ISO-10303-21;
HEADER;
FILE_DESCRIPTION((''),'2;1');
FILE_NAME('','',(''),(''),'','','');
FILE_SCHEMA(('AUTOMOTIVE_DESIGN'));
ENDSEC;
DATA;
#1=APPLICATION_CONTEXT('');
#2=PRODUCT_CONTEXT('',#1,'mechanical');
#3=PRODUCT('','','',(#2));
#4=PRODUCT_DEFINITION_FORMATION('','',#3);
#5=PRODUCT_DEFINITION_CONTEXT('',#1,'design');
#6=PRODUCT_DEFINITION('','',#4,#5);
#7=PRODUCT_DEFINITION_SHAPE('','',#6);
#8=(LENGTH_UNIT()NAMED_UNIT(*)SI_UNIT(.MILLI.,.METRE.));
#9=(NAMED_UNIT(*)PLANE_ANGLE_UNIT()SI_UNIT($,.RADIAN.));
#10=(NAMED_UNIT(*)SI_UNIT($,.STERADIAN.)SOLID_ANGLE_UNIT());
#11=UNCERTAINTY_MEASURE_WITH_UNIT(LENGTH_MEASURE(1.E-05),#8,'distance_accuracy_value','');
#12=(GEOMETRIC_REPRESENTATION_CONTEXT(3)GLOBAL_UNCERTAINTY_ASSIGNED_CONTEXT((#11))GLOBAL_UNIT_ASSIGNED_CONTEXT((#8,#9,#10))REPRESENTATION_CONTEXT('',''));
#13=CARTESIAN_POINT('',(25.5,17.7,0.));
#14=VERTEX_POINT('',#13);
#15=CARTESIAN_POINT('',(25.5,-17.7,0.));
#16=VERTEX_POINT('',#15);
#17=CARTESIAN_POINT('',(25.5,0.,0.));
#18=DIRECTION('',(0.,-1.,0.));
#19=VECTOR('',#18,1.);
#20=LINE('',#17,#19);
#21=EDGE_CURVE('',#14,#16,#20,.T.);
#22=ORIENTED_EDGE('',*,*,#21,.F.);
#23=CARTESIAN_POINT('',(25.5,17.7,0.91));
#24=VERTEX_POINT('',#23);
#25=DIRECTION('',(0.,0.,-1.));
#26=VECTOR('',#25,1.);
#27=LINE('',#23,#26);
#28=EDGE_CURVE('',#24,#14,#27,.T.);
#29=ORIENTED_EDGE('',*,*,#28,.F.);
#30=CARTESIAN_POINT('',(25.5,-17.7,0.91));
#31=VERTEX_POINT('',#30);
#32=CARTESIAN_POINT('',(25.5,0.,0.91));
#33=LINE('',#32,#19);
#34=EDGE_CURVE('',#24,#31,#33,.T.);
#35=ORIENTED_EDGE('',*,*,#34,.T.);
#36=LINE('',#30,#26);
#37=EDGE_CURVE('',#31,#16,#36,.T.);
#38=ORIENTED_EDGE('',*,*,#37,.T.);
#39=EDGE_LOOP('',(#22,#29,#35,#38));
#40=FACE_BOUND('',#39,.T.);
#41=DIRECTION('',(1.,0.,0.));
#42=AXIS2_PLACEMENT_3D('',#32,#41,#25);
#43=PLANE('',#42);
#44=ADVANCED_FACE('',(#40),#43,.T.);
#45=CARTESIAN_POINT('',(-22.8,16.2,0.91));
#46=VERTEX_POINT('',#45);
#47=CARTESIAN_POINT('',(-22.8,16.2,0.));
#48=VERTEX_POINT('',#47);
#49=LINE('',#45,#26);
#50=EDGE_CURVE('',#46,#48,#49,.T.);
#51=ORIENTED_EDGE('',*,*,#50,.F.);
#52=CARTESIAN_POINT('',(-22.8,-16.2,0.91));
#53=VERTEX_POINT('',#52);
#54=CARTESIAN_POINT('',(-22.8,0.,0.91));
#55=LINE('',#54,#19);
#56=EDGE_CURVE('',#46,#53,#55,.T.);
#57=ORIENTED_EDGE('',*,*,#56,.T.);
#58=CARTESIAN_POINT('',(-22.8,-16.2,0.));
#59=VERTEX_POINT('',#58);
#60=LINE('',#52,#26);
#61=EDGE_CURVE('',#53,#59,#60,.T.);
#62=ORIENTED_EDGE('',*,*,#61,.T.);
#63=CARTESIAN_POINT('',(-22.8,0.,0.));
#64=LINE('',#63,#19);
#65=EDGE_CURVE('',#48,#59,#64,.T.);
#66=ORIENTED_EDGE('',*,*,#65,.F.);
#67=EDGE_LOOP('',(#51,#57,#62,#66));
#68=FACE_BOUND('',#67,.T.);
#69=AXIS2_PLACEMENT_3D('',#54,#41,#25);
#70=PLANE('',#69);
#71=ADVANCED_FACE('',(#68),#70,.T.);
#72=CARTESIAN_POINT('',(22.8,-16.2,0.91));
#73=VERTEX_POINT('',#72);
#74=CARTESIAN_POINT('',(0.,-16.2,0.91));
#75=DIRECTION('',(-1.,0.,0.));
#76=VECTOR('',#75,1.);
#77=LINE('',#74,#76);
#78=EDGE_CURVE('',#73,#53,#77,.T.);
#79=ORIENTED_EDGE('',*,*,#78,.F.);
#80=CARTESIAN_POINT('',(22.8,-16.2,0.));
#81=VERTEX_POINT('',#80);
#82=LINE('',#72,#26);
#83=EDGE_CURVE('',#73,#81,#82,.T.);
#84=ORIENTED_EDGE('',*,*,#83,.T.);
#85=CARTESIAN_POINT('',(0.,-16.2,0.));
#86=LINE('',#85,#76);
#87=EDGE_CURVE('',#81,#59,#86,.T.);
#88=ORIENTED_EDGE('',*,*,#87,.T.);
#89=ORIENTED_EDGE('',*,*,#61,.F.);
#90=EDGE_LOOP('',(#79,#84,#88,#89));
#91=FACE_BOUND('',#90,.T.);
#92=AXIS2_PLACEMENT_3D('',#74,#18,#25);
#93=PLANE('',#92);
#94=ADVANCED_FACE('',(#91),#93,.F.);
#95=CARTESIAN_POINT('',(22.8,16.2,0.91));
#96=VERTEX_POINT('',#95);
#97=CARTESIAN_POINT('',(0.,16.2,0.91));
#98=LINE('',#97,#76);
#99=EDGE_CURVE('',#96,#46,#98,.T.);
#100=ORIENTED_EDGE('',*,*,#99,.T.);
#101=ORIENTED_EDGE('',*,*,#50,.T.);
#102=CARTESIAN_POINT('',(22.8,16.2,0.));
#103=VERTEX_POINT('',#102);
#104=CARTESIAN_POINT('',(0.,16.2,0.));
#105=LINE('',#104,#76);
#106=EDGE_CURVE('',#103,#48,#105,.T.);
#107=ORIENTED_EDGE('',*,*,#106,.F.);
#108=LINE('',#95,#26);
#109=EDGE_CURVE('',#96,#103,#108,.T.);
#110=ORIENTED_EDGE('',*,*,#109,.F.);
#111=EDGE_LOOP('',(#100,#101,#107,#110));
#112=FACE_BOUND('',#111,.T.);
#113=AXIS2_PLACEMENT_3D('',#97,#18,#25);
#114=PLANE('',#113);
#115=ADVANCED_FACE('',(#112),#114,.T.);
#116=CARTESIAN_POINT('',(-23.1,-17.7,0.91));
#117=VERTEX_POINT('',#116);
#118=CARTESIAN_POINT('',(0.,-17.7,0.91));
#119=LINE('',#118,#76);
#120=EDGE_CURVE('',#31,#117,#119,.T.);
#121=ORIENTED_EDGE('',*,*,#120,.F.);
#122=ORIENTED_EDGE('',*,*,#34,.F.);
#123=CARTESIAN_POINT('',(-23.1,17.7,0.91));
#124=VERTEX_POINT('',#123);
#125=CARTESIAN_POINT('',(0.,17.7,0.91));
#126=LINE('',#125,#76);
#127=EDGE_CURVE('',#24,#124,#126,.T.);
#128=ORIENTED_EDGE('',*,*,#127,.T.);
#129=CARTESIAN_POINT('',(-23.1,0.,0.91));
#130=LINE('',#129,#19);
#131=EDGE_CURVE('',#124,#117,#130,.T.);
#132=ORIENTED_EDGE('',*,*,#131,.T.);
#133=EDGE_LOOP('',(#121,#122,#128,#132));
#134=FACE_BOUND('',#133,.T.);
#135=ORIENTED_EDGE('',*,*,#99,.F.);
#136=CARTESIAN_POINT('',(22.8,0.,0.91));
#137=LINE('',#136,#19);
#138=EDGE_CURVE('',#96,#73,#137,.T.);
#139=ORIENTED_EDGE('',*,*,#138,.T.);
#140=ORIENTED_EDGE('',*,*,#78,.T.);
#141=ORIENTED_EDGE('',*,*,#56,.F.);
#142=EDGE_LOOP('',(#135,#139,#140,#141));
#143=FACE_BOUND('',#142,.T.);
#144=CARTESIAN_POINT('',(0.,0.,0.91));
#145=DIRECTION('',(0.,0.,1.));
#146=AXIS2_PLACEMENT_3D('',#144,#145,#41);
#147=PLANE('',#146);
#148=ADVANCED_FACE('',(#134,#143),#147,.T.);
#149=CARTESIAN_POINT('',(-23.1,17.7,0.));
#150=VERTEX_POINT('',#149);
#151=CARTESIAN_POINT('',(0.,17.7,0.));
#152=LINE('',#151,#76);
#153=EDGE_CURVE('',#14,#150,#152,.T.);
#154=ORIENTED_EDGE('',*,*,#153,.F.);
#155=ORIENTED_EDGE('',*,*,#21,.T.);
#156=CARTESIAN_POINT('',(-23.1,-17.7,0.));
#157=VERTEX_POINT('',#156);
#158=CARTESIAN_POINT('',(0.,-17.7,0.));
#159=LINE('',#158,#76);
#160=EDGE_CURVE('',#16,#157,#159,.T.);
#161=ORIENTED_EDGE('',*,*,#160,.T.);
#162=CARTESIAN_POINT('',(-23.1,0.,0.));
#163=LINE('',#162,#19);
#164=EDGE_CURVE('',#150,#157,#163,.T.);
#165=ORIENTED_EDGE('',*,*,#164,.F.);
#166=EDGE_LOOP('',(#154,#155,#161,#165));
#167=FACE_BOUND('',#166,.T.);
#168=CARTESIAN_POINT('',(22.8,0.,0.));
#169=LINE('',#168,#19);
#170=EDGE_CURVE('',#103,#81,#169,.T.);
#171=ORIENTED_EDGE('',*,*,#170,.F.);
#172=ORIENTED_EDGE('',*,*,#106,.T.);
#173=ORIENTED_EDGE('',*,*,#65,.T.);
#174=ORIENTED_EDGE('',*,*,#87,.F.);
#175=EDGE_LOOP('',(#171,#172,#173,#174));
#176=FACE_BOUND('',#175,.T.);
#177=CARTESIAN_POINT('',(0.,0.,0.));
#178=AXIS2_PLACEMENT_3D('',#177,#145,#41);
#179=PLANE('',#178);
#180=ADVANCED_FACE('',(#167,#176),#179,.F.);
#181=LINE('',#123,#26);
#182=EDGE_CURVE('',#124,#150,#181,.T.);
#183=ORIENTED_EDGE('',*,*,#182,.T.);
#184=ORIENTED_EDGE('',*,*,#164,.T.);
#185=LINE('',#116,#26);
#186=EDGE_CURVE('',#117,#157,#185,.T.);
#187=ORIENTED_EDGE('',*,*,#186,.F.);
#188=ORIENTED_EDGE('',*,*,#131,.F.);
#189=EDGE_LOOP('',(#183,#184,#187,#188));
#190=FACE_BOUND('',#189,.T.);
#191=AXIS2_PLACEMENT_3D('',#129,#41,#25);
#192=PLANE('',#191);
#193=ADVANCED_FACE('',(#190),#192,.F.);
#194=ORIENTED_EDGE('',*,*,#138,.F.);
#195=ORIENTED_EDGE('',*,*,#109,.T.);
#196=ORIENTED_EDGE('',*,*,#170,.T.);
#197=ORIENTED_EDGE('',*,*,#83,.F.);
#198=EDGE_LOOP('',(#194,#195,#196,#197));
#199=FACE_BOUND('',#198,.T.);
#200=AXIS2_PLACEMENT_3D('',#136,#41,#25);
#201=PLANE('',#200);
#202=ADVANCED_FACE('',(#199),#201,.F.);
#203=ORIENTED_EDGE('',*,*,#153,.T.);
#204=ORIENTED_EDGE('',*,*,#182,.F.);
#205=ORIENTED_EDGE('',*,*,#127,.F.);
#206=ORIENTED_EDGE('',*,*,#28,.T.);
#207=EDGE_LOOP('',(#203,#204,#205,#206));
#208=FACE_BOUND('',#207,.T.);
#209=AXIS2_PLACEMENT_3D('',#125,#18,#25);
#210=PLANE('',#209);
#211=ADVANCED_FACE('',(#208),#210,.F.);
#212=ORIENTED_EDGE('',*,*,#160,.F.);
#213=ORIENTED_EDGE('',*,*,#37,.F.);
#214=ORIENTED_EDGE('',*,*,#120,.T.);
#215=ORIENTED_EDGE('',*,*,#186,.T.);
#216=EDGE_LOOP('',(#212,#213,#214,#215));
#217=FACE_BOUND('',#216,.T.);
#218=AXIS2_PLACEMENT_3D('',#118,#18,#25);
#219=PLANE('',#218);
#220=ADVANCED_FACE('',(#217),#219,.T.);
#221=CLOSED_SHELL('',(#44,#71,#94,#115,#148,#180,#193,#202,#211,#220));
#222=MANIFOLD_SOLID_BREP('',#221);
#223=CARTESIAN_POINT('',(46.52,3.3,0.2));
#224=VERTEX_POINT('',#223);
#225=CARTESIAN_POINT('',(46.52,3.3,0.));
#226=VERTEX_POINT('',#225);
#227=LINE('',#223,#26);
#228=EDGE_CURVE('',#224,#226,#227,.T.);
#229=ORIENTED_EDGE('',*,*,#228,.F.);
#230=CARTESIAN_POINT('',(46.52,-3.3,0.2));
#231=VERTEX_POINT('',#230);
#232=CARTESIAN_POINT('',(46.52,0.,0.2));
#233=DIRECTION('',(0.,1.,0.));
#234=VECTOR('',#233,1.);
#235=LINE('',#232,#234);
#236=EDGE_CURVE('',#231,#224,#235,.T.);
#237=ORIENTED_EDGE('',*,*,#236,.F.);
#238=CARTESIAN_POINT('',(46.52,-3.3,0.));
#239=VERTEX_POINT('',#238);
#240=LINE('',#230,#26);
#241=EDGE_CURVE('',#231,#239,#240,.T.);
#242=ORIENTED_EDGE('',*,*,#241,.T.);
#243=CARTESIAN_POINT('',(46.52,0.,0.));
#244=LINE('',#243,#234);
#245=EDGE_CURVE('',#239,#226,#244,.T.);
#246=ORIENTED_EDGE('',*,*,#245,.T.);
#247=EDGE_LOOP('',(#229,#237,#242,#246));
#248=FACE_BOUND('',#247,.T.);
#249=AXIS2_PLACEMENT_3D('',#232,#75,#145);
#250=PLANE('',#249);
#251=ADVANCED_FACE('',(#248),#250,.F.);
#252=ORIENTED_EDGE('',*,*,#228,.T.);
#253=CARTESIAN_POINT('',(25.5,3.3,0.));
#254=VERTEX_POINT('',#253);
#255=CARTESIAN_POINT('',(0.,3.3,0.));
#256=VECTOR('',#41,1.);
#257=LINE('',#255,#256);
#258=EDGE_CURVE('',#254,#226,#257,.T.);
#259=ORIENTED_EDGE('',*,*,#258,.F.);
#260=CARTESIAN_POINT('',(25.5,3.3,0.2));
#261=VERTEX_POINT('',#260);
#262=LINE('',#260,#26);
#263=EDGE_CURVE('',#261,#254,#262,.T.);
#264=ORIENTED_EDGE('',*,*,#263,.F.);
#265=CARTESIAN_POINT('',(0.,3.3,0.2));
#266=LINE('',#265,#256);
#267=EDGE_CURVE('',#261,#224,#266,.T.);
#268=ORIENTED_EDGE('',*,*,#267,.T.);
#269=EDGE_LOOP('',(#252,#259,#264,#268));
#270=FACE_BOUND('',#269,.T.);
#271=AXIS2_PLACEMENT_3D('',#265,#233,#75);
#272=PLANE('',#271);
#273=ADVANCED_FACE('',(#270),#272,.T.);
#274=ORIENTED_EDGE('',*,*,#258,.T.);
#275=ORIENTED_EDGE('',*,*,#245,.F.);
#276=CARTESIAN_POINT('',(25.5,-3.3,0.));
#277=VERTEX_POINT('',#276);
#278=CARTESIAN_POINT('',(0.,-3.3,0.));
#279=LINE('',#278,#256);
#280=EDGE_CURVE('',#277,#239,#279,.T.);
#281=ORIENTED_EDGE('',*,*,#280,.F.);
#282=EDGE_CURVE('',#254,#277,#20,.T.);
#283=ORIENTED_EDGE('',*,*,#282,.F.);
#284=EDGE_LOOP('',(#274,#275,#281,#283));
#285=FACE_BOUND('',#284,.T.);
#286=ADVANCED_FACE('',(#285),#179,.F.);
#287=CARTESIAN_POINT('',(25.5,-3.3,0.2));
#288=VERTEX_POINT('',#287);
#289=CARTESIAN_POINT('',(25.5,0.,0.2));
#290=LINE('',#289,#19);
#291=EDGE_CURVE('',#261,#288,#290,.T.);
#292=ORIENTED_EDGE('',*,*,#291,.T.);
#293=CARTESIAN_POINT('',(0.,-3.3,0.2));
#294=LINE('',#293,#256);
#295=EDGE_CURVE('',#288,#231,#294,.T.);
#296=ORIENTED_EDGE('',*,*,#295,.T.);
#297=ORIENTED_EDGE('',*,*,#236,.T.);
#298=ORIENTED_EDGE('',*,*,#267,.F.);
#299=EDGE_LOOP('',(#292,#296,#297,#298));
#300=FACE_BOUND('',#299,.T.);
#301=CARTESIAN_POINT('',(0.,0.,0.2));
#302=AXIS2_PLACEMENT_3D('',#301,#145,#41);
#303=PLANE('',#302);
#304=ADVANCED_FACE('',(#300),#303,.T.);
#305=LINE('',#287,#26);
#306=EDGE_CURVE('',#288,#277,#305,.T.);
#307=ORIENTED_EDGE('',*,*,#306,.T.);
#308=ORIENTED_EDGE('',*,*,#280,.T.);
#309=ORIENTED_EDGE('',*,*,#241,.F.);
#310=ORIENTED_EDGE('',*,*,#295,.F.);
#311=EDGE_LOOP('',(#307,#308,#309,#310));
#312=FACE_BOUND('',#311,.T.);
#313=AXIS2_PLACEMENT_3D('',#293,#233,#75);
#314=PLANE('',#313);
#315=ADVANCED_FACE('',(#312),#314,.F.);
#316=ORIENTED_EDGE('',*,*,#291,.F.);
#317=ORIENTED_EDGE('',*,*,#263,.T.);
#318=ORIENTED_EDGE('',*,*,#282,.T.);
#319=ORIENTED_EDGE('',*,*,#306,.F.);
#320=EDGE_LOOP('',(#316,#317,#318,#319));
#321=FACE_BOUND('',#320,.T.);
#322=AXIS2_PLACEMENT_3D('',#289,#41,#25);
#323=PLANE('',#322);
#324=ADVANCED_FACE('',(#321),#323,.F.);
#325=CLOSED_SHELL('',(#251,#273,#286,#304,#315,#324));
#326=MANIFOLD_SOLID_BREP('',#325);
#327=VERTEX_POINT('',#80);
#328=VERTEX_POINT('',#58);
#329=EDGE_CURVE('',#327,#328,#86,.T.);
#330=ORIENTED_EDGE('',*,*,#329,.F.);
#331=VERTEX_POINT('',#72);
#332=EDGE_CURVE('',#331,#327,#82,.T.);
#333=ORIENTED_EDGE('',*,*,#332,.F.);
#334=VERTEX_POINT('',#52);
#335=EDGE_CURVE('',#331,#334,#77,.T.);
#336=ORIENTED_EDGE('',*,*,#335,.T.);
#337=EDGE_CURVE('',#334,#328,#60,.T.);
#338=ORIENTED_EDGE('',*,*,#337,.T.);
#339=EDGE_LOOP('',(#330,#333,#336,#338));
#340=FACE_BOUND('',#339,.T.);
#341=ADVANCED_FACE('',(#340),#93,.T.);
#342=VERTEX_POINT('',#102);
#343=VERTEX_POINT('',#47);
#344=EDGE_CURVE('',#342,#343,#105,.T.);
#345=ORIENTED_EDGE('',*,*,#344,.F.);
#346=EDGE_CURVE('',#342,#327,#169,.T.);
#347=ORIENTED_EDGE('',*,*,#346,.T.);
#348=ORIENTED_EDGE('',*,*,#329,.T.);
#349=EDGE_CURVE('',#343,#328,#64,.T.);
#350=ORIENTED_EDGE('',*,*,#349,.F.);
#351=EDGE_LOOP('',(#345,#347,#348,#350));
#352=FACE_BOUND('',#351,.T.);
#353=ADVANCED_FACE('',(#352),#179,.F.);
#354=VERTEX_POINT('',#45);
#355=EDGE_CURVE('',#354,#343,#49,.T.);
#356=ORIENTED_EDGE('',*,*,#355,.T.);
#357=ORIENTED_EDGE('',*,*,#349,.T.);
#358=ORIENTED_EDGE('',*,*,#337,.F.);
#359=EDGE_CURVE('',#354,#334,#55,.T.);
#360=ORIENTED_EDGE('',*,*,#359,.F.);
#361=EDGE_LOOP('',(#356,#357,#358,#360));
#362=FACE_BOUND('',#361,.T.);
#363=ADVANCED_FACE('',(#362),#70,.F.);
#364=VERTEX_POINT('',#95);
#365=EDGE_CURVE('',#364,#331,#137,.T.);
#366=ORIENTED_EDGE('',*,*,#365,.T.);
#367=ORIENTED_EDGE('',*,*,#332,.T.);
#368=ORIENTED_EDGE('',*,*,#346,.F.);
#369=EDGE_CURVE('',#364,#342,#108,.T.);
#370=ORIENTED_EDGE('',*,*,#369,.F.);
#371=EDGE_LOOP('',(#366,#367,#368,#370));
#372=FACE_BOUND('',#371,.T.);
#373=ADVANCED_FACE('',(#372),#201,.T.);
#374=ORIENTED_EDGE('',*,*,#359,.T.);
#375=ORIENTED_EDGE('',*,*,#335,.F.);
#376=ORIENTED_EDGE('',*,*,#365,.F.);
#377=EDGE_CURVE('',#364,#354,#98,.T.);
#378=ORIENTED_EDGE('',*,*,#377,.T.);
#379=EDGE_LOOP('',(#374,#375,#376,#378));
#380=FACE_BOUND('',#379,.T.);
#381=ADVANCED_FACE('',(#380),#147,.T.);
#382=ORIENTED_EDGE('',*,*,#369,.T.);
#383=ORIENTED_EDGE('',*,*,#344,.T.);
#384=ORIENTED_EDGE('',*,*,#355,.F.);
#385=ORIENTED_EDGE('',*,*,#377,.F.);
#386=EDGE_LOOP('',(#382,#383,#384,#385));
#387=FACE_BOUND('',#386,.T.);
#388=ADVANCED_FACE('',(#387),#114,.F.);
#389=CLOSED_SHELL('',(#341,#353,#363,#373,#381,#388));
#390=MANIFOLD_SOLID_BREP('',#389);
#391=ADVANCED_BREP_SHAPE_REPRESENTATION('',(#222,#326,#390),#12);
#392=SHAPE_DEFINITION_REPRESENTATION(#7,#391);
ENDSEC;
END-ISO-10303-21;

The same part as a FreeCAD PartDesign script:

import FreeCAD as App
import Part
import Sketcher
from FreeCAD import Vector


def add_polygon(sketch, points):
    """Adds a closed chain of lines whose ends are joined by coincident constraints."""
    first, n = sketch.GeometryCount, len(points)
    for a, b in zip(points, points[1:] + points[:1]):
        sketch.addGeometry(Part.LineSegment(App.Vector(*a, 0), App.Vector(*b, 0)), False)
    for i in range(n):
        sketch.addConstraint(Sketcher.Constraint("Coincident", first + i, 2, first + (i + 1) % n, 1))

doc = App.newDocument("Part")
params = doc.addObject("Spreadsheet::Sheet", "Params")
for row, (alias, value) in enumerate([
    ("sketch1_width", "45.6 mm"),
    ("sketch1_height", "32.4 mm"),
    ("pad1_length", "0.91 mm"),
    ("sketch2_width", "48.6 mm"),
    ("sketch2_width2", "45.6 mm"),
    ("sketch2_height", "35.4 mm"),
    ("sketch2_height2", "32.4 mm"),
    ("pad2_length", "0.91 mm"),
    ("sketch3_height", "6.6 mm"),
    ("sketch3_width", "21.02 mm"),
    ("pad3_length", "0.2 mm"),
], start=1):
    params.set(f"A{row}", alias)
    params.set(f"B{row}", "=" + value)
    params.setAlias(f"B{row}", alias)

body = doc.addObject("PartDesign::Body", "Body")

# Sketch on XY plane
sketch1 = body.newObject("Sketcher::SketchObject", "Sketch")
sketch1.AttachmentSupport = (doc.getObject("XY_Plane"), [""])
sketch1.MapMode = "FlatFace"
add_polygon(sketch1, [(-22.8, 16.2), (-22.8, -16.2), (22.8, -16.2), (22.8, 16.2)])  # lines 0-3
sketch1.addConstraint([
    Sketcher.Constraint("Vertical", 0),
    Sketcher.Constraint("Horizontal", 1),
    Sketcher.Constraint("Vertical", 2),
    Sketcher.Constraint("Horizontal", 3),
    Sketcher.Constraint("Symmetric", 0, 2, 2, 2, -1, 1),
    Sketcher.Constraint("DistanceX", 1, 1, 1, 2, 45.6),
    Sketcher.Constraint("DistanceY", 0, 2, 0, 1, 32.4),
])
sketch1.setExpression("Constraints[9]", "Params.sketch1_width")
sketch1.setExpression("Constraints[10]", "Params.sketch1_height")
pad1 = body.newObject("PartDesign::Pad", "Pad")
pad1.Profile = sketch1
pad1.setExpression("Length", "Params.pad1_length")
body2 = doc.addObject("PartDesign::Body", "Body001")

# Sketch on XY plane
sketch2 = body2.newObject("Sketcher::SketchObject", "Sketch001")
sketch2.AttachmentSupport = (doc.getObject("XY_Plane001"), [""])
sketch2.MapMode = "FlatFace"
add_polygon(sketch2, [(-23.1, 17.7), (-23.1, -17.7), (25.5, -17.7), (25.5, 17.7)])  # lines 0-3
add_polygon(sketch2, [(22.8, -16.2), (-22.8, -16.2), (-22.8, 16.2), (22.8, 16.2)])  # lines 4-7
sketch2.addConstraint([
    Sketcher.Constraint("Vertical", 0),
    Sketcher.Constraint("Horizontal", 1),
    Sketcher.Constraint("Vertical", 2),
    Sketcher.Constraint("Horizontal", 3),
    Sketcher.Constraint("Horizontal", 4),
    Sketcher.Constraint("Vertical", 5),
    Sketcher.Constraint("Horizontal", 6),
    Sketcher.Constraint("Vertical", 7),
    Sketcher.Constraint("Symmetric", 4, 2, 6, 2, -1, 1),
    Sketcher.Constraint("DistanceX", 1, 1, 1, 2, 48.6),
    Sketcher.Constraint("DistanceX", 4, 2, 4, 1, 45.6),
    Sketcher.Constraint("DistanceY", 0, 2, 0, 1, 35.4),
    Sketcher.Constraint("DistanceY", 5, 1, 5, 2, 32.4),
    Sketcher.Constraint("DistanceX", 0, 2, -1, 1, 23.1),
    Sketcher.Constraint("DistanceY", 0, 2, -1, 1, 17.7),
])
sketch2.setExpression("Constraints[17]", "Params.sketch2_width")
sketch2.setExpression("Constraints[18]", "Params.sketch2_width2")
sketch2.setExpression("Constraints[19]", "Params.sketch2_height")
sketch2.setExpression("Constraints[20]", "Params.sketch2_height2")
pad2 = body2.newObject("PartDesign::Pad", "Pad001")
pad2.Profile = sketch2
pad2.setExpression("Length", "Params.pad2_length")
body3 = doc.addObject("PartDesign::Body", "Body002")

# Sketch on XY plane
sketch3 = body3.newObject("Sketcher::SketchObject", "Sketch002")
sketch3.AttachmentSupport = (doc.getObject("XY_Plane002"), [""])
sketch3.MapMode = "FlatFace"
add_polygon(sketch3, [(25.5, 3.3), (25.5, -3.3), (46.52, -3.3), (46.52, 3.3)])  # lines 0-3
sketch3.addConstraint([
    Sketcher.Constraint("Vertical", 0),
    Sketcher.Constraint("Horizontal", 1),
    Sketcher.Constraint("Vertical", 2),
    Sketcher.Constraint("Horizontal", 3),
    Sketcher.Constraint("DistanceY", 0, 2, 0, 1, 6.6),
    Sketcher.Constraint("DistanceX", 1, 1, 1, 2, 21.02),
    Sketcher.Constraint("DistanceX", -1, 1, 0, 2, 25.5),
    Sketcher.Constraint("DistanceY", 0, 2, -1, 1, 3.3),
])
sketch3.setExpression("Constraints[8]", "Params.sketch3_height")
sketch3.setExpression("Constraints[9]", "Params.sketch3_width")
pad3 = body3.newObject("PartDesign::Pad", "Pad002")
pad3.Profile = sketch3
pad3.setExpression("Length", "Params.pad3_length")

doc.recompute()
